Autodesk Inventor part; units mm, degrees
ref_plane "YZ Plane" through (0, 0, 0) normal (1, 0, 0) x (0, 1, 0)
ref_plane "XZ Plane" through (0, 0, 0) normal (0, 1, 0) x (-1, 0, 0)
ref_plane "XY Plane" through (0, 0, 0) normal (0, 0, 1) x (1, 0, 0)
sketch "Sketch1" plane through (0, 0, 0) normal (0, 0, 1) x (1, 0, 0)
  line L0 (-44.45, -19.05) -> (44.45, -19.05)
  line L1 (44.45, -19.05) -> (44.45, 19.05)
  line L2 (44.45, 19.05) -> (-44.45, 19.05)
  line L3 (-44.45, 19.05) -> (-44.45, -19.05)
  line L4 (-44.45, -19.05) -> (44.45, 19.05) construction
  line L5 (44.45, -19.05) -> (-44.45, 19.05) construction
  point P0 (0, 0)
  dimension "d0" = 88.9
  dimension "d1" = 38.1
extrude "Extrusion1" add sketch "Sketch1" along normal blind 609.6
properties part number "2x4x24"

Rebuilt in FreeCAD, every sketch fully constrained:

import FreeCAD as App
import Part
import Sketcher
from FreeCAD import Vector
Q = App.Units.Quantity

doc = App.newDocument("Part")
body = doc.addObject("PartDesign::Body", "Body")

# Sketch on XY plane
sketch1 = body.newObject("Sketcher::SketchObject", "Sketch")
sketch1.AttachmentSupport = (doc.getObject("XY_Plane"), [""])
sketch1.MapMode = "FlatFace"
sketch1.addGeometry([
    Part.LineSegment(Vector(-44.45, 19.05, 0), Vector(-44.45, -19.05, 0)),
    Part.LineSegment(Vector(-44.45, -19.05, 0), Vector(44.45, -19.05, 0)),
    Part.LineSegment(Vector(44.45, -19.05, 0), Vector(44.45, 19.05, 0)),
    Part.LineSegment(Vector(44.45, 19.05, 0), Vector(-44.45, 19.05, 0)),
], False)
sketch1.addConstraint([
    Sketcher.Constraint("Coincident", 0, 2, 1, 1),
    Sketcher.Constraint("Coincident", 1, 2, 2, 1),
    Sketcher.Constraint("Coincident", 2, 2, 3, 1),
    Sketcher.Constraint("Coincident", 3, 2, 0, 1),
    Sketcher.Constraint("Vertical", 0),
    Sketcher.Constraint("Horizontal", 1),
    Sketcher.Constraint("Vertical", 2),
    Sketcher.Constraint("Horizontal", 3),
    Sketcher.Constraint("Symmetric", 0, 2, 2, 2, -1, 1),
    Sketcher.Constraint("DistanceX", 1, 1, 1, 2, Q("3.5 in")),
    Sketcher.Constraint("DistanceY", 0, 2, 0, 1, Q("1.5 in")),
])
pad1 = body.newObject("PartDesign::Pad", "Pad")
pad1.Profile = sketch1
pad1.Length = Q("24 in")

doc.recompute()
